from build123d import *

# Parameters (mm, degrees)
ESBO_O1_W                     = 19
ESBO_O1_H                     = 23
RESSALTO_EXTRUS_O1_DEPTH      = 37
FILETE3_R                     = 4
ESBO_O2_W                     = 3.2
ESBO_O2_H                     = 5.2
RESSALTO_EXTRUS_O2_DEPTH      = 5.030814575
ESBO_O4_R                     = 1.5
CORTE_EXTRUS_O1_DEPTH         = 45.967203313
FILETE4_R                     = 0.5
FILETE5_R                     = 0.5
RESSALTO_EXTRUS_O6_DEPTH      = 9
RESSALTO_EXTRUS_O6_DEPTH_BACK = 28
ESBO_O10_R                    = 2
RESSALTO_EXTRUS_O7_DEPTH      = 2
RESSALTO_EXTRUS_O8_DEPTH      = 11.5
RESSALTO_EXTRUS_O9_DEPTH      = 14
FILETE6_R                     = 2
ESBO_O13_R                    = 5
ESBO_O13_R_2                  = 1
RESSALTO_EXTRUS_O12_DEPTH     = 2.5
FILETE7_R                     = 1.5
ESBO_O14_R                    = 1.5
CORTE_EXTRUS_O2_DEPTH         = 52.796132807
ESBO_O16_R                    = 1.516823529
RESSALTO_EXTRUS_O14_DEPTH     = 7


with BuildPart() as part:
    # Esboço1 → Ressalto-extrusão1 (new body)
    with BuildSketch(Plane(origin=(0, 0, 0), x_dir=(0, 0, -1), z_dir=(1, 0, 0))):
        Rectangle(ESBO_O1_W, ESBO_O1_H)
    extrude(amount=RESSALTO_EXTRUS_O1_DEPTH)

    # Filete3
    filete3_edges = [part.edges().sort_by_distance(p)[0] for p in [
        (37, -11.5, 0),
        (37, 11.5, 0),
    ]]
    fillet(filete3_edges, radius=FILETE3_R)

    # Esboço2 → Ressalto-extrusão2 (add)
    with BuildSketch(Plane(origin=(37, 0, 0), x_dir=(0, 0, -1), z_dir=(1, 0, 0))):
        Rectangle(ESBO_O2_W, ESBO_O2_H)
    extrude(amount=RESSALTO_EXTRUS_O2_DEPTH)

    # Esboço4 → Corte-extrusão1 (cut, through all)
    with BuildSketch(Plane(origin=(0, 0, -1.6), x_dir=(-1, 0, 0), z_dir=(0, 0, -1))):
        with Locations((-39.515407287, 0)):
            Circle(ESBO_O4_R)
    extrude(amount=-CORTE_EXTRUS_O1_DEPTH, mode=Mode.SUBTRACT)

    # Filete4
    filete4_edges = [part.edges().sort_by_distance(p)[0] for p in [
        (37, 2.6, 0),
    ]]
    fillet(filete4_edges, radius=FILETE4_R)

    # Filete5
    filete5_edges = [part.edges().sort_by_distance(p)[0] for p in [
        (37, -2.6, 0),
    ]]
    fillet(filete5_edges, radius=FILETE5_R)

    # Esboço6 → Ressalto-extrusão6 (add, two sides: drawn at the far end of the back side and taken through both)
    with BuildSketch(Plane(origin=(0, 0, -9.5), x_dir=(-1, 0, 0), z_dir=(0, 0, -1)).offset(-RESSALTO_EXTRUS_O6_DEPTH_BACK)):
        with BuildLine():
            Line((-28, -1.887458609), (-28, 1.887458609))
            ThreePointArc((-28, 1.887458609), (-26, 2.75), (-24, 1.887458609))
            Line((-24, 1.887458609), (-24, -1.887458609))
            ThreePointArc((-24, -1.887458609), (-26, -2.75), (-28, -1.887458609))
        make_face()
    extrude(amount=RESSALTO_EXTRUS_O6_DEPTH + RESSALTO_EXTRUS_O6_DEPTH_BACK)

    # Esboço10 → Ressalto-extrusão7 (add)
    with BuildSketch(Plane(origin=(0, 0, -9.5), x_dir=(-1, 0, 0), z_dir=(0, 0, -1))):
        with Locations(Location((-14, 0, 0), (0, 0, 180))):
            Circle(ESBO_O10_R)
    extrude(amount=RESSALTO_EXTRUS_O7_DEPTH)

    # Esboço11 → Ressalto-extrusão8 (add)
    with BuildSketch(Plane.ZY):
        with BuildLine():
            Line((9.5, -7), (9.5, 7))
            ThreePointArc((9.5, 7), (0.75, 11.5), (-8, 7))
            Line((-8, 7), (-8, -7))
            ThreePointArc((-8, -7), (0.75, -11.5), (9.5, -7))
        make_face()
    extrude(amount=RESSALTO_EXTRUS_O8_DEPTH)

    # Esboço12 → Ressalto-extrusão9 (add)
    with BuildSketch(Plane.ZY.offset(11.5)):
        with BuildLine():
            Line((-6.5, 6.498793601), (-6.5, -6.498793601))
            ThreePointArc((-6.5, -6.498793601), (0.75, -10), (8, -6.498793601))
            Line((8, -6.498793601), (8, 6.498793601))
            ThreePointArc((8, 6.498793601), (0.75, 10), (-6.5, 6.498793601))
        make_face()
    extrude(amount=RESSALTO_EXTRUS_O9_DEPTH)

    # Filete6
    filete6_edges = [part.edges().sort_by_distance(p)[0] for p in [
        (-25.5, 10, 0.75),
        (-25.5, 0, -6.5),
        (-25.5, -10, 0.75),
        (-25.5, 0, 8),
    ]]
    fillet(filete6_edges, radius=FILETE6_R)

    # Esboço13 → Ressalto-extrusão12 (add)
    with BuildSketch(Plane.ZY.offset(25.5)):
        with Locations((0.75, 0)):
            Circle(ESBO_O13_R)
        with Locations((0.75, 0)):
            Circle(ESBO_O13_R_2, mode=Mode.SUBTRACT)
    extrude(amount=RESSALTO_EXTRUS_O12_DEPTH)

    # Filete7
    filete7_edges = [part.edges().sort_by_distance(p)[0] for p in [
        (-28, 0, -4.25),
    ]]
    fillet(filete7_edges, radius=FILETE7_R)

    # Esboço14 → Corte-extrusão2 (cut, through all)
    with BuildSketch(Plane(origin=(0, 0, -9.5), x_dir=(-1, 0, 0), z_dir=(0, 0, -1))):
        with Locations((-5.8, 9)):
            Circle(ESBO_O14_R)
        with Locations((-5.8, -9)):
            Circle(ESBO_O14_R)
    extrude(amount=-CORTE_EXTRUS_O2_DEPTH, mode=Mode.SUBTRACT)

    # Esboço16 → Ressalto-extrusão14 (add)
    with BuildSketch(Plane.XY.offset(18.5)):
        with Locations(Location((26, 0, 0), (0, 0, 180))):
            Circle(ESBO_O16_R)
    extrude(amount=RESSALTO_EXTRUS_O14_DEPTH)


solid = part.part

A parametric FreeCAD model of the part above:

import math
import FreeCAD as App
import Part
import Sketcher

V = App.Vector
Q = App.Units.Quantity


def edges_at(feature, points):
    """Names of the edges that pass closest to the given points."""
    edges = feature.Shape.Edges
    near = lambda p: min(range(len(edges)), key=lambda i: edges[i].distToShape(Part.Vertex(*p))[0])
    return sorted({f"Edge{near(p) + 1}" for p in points})

doc = App.newDocument("Part")
body = doc.addObject("PartDesign::Body", "Body")

sketch1 = doc.addObject("Sketcher::SketchObject", "Sketch")
body.addObject(sketch1)
sketch1.AttachmentSupport = (doc.YZ_Plane, [""])
sketch1.MapMode = "FlatFace"
sketch1.addGeometry(Part.LineSegment(V(11.5, 9.5, 0), V(-11.5, 9.5, 0)), False)
sketch1.addGeometry(Part.LineSegment(V(-11.5, 9.5, 0), V(-11.5, -9.5, 0)), False)
sketch1.addGeometry(Part.LineSegment(V(-11.5, -9.5, 0), V(11.5, -9.5, 0)), False)
sketch1.addGeometry(Part.LineSegment(V(11.5, -9.5, 0), V(11.5, 9.5, 0)), False)
sketch1.addConstraint(Sketcher.Constraint("Coincident", 0, 2, 1, 1))
sketch1.addConstraint(Sketcher.Constraint("Coincident", 1, 2, 2, 1))
sketch1.addConstraint(Sketcher.Constraint("Coincident", 2, 2, 3, 1))
sketch1.addConstraint(Sketcher.Constraint("Coincident", 3, 2, 0, 1))
sketch1.addConstraint(Sketcher.Constraint("Horizontal", 0))
sketch1.addConstraint(Sketcher.Constraint("Vertical", 1))
sketch1.addConstraint(Sketcher.Constraint("Horizontal", 2))
sketch1.addConstraint(Sketcher.Constraint("Vertical", 3))
sketch1.addConstraint(Sketcher.Constraint("Symmetric", 0, 2, 2, 2, -1, 1))
sketch1.addConstraint(Sketcher.Constraint("DistanceX", 0, 2, 0, 1, Q("23 mm")))
sketch1.addConstraint(Sketcher.Constraint("DistanceY", 1, 2, 1, 1, Q("19 mm")))
pad1 = doc.addObject("PartDesign::Pad", "Pad")
body.addObject(pad1)
pad1.Profile = sketch1
pad1.Length = 37
doc.recompute()

fillet = doc.addObject("PartDesign::Fillet", "Fillet")
body.addObject(fillet)
fillet.Base = (pad1, edges_at(pad1, [(37, -11.5, 0), (37, 11.5, 0)]))
fillet.Radius = 4

sketch2 = doc.addObject("Sketcher::SketchObject", "Sketch001")
body.addObject(sketch2)
sketch2.AttachmentSupport = (doc.YZ_Plane, [""])
sketch2.MapMode = "FlatFace"
sketch2.AttachmentOffset = App.Placement(V(0, 0, 37), App.Rotation())
sketch2.addGeometry(Part.LineSegment(V(2.6, 1.6, 0), V(-2.6, 1.6, 0)), False)
sketch2.addGeometry(Part.LineSegment(V(-2.6, 1.6, 0), V(-2.6, -1.6, 0)), False)
sketch2.addGeometry(Part.LineSegment(V(-2.6, -1.6, 0), V(2.6, -1.6, 0)), False)
sketch2.addGeometry(Part.LineSegment(V(2.6, -1.6, 0), V(2.6, 1.6, 0)), False)
sketch2.addConstraint(Sketcher.Constraint("Coincident", 0, 2, 1, 1))
sketch2.addConstraint(Sketcher.Constraint("Coincident", 1, 2, 2, 1))
sketch2.addConstraint(Sketcher.Constraint("Coincident", 2, 2, 3, 1))
sketch2.addConstraint(Sketcher.Constraint("Coincident", 3, 2, 0, 1))
sketch2.addConstraint(Sketcher.Constraint("Horizontal", 0))
sketch2.addConstraint(Sketcher.Constraint("Vertical", 1))
sketch2.addConstraint(Sketcher.Constraint("Horizontal", 2))
sketch2.addConstraint(Sketcher.Constraint("Vertical", 3))
sketch2.addConstraint(Sketcher.Constraint("Symmetric", 0, 2, 2, 2, -1, 1))
sketch2.addConstraint(Sketcher.Constraint("DistanceX", 0, 2, 0, 1, Q("5.2 mm")))
sketch2.addConstraint(Sketcher.Constraint("DistanceY", 1, 2, 1, 1, Q("3.2 mm")))
pad2 = doc.addObject("PartDesign::Pad", "Pad001")
body.addObject(pad2)
pad2.Profile = sketch2
pad2.Length = 5.030815

sketch3 = doc.addObject("Sketcher::SketchObject", "Sketch002")
body.addObject(sketch3)
sketch3.AttachmentSupport = (doc.XY_Plane, [""])
sketch3.MapMode = "FlatFace"
sketch3.AttachmentOffset = App.Placement(V(0, 0, -1.6), App.Rotation())
sketch3.addGeometry(Part.Circle(V(39.515407, 0, 0), V(0, 0, 1), 1.5), False)
sketch3.addConstraint(Sketcher.Constraint("PointOnObject", 0, 3, -1))
sketch3.addConstraint(Sketcher.Constraint("Diameter", 0, Q("3 mm")))
sketch3.addConstraint(Sketcher.Constraint("DistanceX", -1, 1, 0, 3, Q("39.515407 mm")))
pocket1 = doc.addObject("PartDesign::Pocket", "Pocket")
body.addObject(pocket1)
pocket1.Profile = sketch3
pocket1.Type = "ThroughAll"
pocket1.Reversed = True
doc.recompute()

fillet2 = doc.addObject("PartDesign::Fillet", "Fillet001")
body.addObject(fillet2)
fillet2.Base = (pocket1, edges_at(pocket1, [(37, 2.6, 0)]))
fillet2.Radius = 0.5
doc.recompute()

fillet3 = doc.addObject("PartDesign::Fillet", "Fillet002")
body.addObject(fillet3)
fillet3.Base = (fillet2, edges_at(fillet2, [(37, -2.6, 0)]))
fillet3.Radius = 0.5

sketch4 = doc.addObject("Sketcher::SketchObject", "Sketch003")
body.addObject(sketch4)
sketch4.AttachmentSupport = (doc.XY_Plane, [""])
sketch4.MapMode = "FlatFace"
sketch4.AttachmentOffset = App.Placement(V(0, 0, -9.5), App.Rotation())
sketch4.addGeometry(Part.LineSegment(V(28, 1.887459, 0), V(28, -1.887459, 0)), False)
sketch4.addGeometry(Part.ArcOfCircle(Part.Circle(V(26, 0, 0), V(0, 0, 1), 2.75), math.radians(-136.658242), math.radians(-43.341758)), False)
sketch4.addGeometry(Part.LineSegment(V(24, -1.887459, 0), V(24, 1.887459, 0)), False)
sketch4.addGeometry(Part.ArcOfCircle(Part.Circle(V(26, 0, 0), V(0, 0, 1), 2.75), math.radians(43.341758), math.radians(136.658242)), False)
sketch4.addConstraint(Sketcher.Constraint("Coincident", 0, 2, 1, 2))
sketch4.addConstraint(Sketcher.Constraint("Coincident", 1, 1, 2, 1))
sketch4.addConstraint(Sketcher.Constraint("Coincident", 2, 2, 3, 2))
sketch4.addConstraint(Sketcher.Constraint("Coincident", 3, 1, 0, 1))
sketch4.addConstraint(Sketcher.Constraint("Vertical", 0))
sketch4.addConstraint(Sketcher.Constraint("Vertical", 2))
sketch4.addConstraint(Sketcher.Constraint("Coincident", 3, 3, 1, 3))
sketch4.addConstraint(Sketcher.Constraint("Equal", 1, 3))
sketch4.addConstraint(Sketcher.Constraint("PointOnObject", 1, 3, -1))
sketch4.addConstraint(Sketcher.Constraint("Horizontal", 0, 2, 1, 1))
sketch4.addConstraint(Sketcher.Constraint("Radius", 1, Q("2.75 mm")))
sketch4.addConstraint(Sketcher.Constraint("DistanceX", -1, 1, 1, 3, Q("26 mm")))
sketch4.addConstraint(Sketcher.Constraint("DistanceX", -1, 1, 0, 2, Q("28 mm")))
pad3 = doc.addObject("PartDesign::Pad", "Pad002")
body.addObject(pad3)
pad3.Profile = sketch4
pad3.Type = "TwoLengths"
pad3.Length = 9
pad3.Length2 = 28
pad3.Reversed = True

sketch5 = doc.addObject("Sketcher::SketchObject", "Sketch004")
body.addObject(sketch5)
sketch5.AttachmentSupport = (doc.XY_Plane, [""])
sketch5.MapMode = "FlatFace"
sketch5.AttachmentOffset = App.Placement(V(0, 0, -9.5), App.Rotation())
sketch5.addGeometry(Part.Circle(V(14, 0, 0), V(0, 0, 1), 2), False)
sketch5.addConstraint(Sketcher.Constraint("PointOnObject", 0, 3, -1))
sketch5.addConstraint(Sketcher.Constraint("Diameter", 0, Q("4 mm")))
sketch5.addConstraint(Sketcher.Constraint("DistanceX", -1, 1, 0, 3, Q("14 mm")))
pad4 = doc.addObject("PartDesign::Pad", "Pad003")
body.addObject(pad4)
pad4.Profile = sketch5
pad4.Length = 2
pad4.Reversed = True

sketch6 = doc.addObject("Sketcher::SketchObject", "Sketch005")
body.addObject(sketch6)
sketch6.AttachmentSupport = (doc.YZ_Plane, [""])
sketch6.MapMode = "FlatFace"
sketch6.addGeometry(Part.LineSegment(V(-7, 9.5, 0), V(7, 9.5, 0)), False)
sketch6.addGeometry(Part.ArcOfCircle(Part.Circle(V(0.743056, 0.75, 0), V(0, 0, 1), 10.756944), math.radians(-54.432223), math.radians(54.432223)), False)
sketch6.addGeometry(Part.LineSegment(V(7, -8, 0), V(-7, -8, 0)), False)
sketch6.addGeometry(Part.ArcOfCircle(Part.Circle(V(-0.743056, 0.75, 0), V(0, 0, 1), 10.756944), math.radians(125.567777), math.radians(234.432223)), False)
sketch6.addConstraint(Sketcher.Constraint("Coincident", 0, 2, 1, 2))
sketch6.addConstraint(Sketcher.Constraint("Coincident", 1, 1, 2, 1))
sketch6.addConstraint(Sketcher.Constraint("Coincident", 2, 2, 3, 2))
sketch6.addConstraint(Sketcher.Constraint("Coincident", 3, 1, 0, 1))
sketch6.addConstraint(Sketcher.Constraint("Horizontal", 0))
sketch6.addConstraint(Sketcher.Constraint("Horizontal", 2))
sketch6.addConstraint(Sketcher.Constraint("Equal", 1, 3))
sketch6.addConstraint(Sketcher.Constraint("Symmetric", 1, 3, 3, 3, -2))
sketch6.addConstraint(Sketcher.Constraint("Vertical", 0, 2, 1, 1))
sketch6.addConstraint(Sketcher.Constraint("DistanceX", 0, 1, 0, 2, Q("14 mm")))
sketch6.addConstraint(Sketcher.Constraint("DistanceY", 1, 1, -1, 1, Q("8 mm")))
sketch6.addConstraint(Sketcher.Constraint("DistanceY", -1, 1, 0, 2, Q("9.5 mm")))
sketch6.addConstraint(Sketcher.Constraint("Radius", 1, Q("10.756944 mm")))
pad5 = doc.addObject("PartDesign::Pad", "Pad004")
body.addObject(pad5)
pad5.Profile = sketch6
pad5.Length = 11.5
pad5.Reversed = True

sketch7 = doc.addObject("Sketcher::SketchObject", "Sketch006")
body.addObject(sketch7)
sketch7.AttachmentSupport = (doc.YZ_Plane, [""])
sketch7.MapMode = "FlatFace"
sketch7.AttachmentOffset = App.Placement(V(0, 0, -11.5), App.Rotation())
sketch7.addGeometry(Part.LineSegment(V(6.498794, -6.5, 0), V(-6.498794, -6.5, 0)), False)
sketch7.addGeometry(Part.ArcOfCircle(Part.Circle(V(-0.743056, 0.75, 0), V(0, 0, 1), 9.256944), math.radians(128.445882), math.radians(231.554118)), False)
sketch7.addGeometry(Part.LineSegment(V(-6.498794, 8, 0), V(6.498794, 8, 0)), False)
sketch7.addGeometry(Part.ArcOfCircle(Part.Circle(V(0.743056, 0.75, 0), V(0, 0, 1), 9.256944), math.radians(-51.554118), math.radians(51.554118)), False)
sketch7.addConstraint(Sketcher.Constraint("Coincident", 0, 2, 1, 2))
sketch7.addConstraint(Sketcher.Constraint("Coincident", 1, 1, 2, 1))
sketch7.addConstraint(Sketcher.Constraint("Coincident", 2, 2, 3, 2))
sketch7.addConstraint(Sketcher.Constraint("Coincident", 3, 1, 0, 1))
sketch7.addConstraint(Sketcher.Constraint("Horizontal", 0))
sketch7.addConstraint(Sketcher.Constraint("Horizontal", 2))
sketch7.addConstraint(Sketcher.Constraint("Equal", 1, 3))
sketch7.addConstraint(Sketcher.Constraint("Symmetric", 1, 3, 3, 3, -2))
sketch7.addConstraint(Sketcher.Constraint("Vertical", 0, 2, 1, 1))
sketch7.addConstraint(Sketcher.Constraint("DistanceY", -1, 1, 1, 1, Q("8 mm")))
sketch7.addConstraint(Sketcher.Constraint("DistanceY", 0, 2, -1, 1, Q("6.5 mm")))
sketch7.addConstraint(Sketcher.Constraint("Radius", 1, Q("9.256944 mm")))
sketch7.addConstraint(Sketcher.Constraint("DistanceX", 0, 2, 0, 1, Q("12.997587 mm")))
pad6 = doc.addObject("PartDesign::Pad", "Pad005")
body.addObject(pad6)
pad6.Profile = sketch7
pad6.Length = 14
pad6.Reversed = True
doc.recompute()

fillet4 = doc.addObject("PartDesign::Fillet", "Fillet003")
body.addObject(fillet4)
fillet4.Base = (pad6, edges_at(pad6, [
    (-25.5, 10, 0.75),
    (-25.5, 0, -6.5),
    (-25.5, -10, 0.75),
    (-25.5, 0, 8),
]))
fillet4.Radius = 2

sketch8 = doc.addObject("Sketcher::SketchObject", "Sketch007")
body.addObject(sketch8)
sketch8.AttachmentSupport = (doc.YZ_Plane, [""])
sketch8.MapMode = "FlatFace"
sketch8.AttachmentOffset = App.Placement(V(0, 0, -25.5), App.Rotation())
sketch8.addGeometry(Part.Circle(V(0, 0.75, 0), V(0, 0, 1), 5), False)
sketch8.addGeometry(Part.Circle(V(0, 0.75, 0), V(0, 0, 1), 1), False)
sketch8.addConstraint(Sketcher.Constraint("Coincident", 1, 3, 0, 3))
sketch8.addConstraint(Sketcher.Constraint("PointOnObject", 0, 3, -2))
sketch8.addConstraint(Sketcher.Constraint("Diameter", 0, Q("10 mm")))
sketch8.addConstraint(Sketcher.Constraint("Diameter", 1, Q("2 mm")))
sketch8.addConstraint(Sketcher.Constraint("DistanceY", -1, 1, 0, 3, Q("0.75 mm")))
pad7 = doc.addObject("PartDesign::Pad", "Pad006")
body.addObject(pad7)
pad7.Profile = sketch8
pad7.Length = 2.5
pad7.Reversed = True
doc.recompute()

fillet5 = doc.addObject("PartDesign::Fillet", "Fillet004")
body.addObject(fillet5)
fillet5.Base = (pad7, edges_at(pad7, [(-28, 0, -4.25)]))
fillet5.Radius = 1.5

sketch9 = doc.addObject("Sketcher::SketchObject", "Sketch008")
body.addObject(sketch9)
sketch9.AttachmentSupport = (doc.XY_Plane, [""])
sketch9.MapMode = "FlatFace"
sketch9.AttachmentOffset = App.Placement(V(0, 0, -9.5), App.Rotation())
sketch9.addGeometry(Part.Circle(V(5.8, 9, 0), V(0, 0, 1), 1.5), False)
sketch9.addGeometry(Part.Circle(V(5.8, -9, 0), V(0, 0, 1), 1.5), False)
sketch9.addConstraint(Sketcher.Constraint("Equal", 0, 1))
sketch9.addConstraint(Sketcher.Constraint("Symmetric", 0, 3, 1, 3, -1))
sketch9.addConstraint(Sketcher.Constraint("Diameter", 0, Q("3 mm")))
sketch9.addConstraint(Sketcher.Constraint("DistanceY", -1, 1, 0, 3, Q("9 mm")))
sketch9.addConstraint(Sketcher.Constraint("DistanceX", -1, 1, 0, 3, Q("5.8 mm")))
pocket2 = doc.addObject("PartDesign::Pocket", "Pocket001")
body.addObject(pocket2)
pocket2.Profile = sketch9
pocket2.Type = "ThroughAll"
pocket2.Reversed = True

sketch10 = doc.addObject("Sketcher::SketchObject", "Sketch009")
body.addObject(sketch10)
sketch10.AttachmentSupport = (doc.XY_Plane, [""])
sketch10.MapMode = "FlatFace"
sketch10.AttachmentOffset = App.Placement(V(0, 0, 18.5), App.Rotation())
sketch10.addGeometry(Part.Circle(V(26, 0, 0), V(0, 0, 1), 1.516824), False)
sketch10.addConstraint(Sketcher.Constraint("PointOnObject", 0, 3, -1))
sketch10.addConstraint(Sketcher.Constraint("DistanceX", -1, 1, 0, 3, Q("26 mm")))
sketch10.addConstraint(Sketcher.Constraint("Diameter", 0, Q("3.033647 mm")))
pad8 = doc.addObject("PartDesign::Pad", "Pad007")
body.addObject(pad8)
pad8.Profile = sketch10
pad8.Length = 7

doc.recompute()
